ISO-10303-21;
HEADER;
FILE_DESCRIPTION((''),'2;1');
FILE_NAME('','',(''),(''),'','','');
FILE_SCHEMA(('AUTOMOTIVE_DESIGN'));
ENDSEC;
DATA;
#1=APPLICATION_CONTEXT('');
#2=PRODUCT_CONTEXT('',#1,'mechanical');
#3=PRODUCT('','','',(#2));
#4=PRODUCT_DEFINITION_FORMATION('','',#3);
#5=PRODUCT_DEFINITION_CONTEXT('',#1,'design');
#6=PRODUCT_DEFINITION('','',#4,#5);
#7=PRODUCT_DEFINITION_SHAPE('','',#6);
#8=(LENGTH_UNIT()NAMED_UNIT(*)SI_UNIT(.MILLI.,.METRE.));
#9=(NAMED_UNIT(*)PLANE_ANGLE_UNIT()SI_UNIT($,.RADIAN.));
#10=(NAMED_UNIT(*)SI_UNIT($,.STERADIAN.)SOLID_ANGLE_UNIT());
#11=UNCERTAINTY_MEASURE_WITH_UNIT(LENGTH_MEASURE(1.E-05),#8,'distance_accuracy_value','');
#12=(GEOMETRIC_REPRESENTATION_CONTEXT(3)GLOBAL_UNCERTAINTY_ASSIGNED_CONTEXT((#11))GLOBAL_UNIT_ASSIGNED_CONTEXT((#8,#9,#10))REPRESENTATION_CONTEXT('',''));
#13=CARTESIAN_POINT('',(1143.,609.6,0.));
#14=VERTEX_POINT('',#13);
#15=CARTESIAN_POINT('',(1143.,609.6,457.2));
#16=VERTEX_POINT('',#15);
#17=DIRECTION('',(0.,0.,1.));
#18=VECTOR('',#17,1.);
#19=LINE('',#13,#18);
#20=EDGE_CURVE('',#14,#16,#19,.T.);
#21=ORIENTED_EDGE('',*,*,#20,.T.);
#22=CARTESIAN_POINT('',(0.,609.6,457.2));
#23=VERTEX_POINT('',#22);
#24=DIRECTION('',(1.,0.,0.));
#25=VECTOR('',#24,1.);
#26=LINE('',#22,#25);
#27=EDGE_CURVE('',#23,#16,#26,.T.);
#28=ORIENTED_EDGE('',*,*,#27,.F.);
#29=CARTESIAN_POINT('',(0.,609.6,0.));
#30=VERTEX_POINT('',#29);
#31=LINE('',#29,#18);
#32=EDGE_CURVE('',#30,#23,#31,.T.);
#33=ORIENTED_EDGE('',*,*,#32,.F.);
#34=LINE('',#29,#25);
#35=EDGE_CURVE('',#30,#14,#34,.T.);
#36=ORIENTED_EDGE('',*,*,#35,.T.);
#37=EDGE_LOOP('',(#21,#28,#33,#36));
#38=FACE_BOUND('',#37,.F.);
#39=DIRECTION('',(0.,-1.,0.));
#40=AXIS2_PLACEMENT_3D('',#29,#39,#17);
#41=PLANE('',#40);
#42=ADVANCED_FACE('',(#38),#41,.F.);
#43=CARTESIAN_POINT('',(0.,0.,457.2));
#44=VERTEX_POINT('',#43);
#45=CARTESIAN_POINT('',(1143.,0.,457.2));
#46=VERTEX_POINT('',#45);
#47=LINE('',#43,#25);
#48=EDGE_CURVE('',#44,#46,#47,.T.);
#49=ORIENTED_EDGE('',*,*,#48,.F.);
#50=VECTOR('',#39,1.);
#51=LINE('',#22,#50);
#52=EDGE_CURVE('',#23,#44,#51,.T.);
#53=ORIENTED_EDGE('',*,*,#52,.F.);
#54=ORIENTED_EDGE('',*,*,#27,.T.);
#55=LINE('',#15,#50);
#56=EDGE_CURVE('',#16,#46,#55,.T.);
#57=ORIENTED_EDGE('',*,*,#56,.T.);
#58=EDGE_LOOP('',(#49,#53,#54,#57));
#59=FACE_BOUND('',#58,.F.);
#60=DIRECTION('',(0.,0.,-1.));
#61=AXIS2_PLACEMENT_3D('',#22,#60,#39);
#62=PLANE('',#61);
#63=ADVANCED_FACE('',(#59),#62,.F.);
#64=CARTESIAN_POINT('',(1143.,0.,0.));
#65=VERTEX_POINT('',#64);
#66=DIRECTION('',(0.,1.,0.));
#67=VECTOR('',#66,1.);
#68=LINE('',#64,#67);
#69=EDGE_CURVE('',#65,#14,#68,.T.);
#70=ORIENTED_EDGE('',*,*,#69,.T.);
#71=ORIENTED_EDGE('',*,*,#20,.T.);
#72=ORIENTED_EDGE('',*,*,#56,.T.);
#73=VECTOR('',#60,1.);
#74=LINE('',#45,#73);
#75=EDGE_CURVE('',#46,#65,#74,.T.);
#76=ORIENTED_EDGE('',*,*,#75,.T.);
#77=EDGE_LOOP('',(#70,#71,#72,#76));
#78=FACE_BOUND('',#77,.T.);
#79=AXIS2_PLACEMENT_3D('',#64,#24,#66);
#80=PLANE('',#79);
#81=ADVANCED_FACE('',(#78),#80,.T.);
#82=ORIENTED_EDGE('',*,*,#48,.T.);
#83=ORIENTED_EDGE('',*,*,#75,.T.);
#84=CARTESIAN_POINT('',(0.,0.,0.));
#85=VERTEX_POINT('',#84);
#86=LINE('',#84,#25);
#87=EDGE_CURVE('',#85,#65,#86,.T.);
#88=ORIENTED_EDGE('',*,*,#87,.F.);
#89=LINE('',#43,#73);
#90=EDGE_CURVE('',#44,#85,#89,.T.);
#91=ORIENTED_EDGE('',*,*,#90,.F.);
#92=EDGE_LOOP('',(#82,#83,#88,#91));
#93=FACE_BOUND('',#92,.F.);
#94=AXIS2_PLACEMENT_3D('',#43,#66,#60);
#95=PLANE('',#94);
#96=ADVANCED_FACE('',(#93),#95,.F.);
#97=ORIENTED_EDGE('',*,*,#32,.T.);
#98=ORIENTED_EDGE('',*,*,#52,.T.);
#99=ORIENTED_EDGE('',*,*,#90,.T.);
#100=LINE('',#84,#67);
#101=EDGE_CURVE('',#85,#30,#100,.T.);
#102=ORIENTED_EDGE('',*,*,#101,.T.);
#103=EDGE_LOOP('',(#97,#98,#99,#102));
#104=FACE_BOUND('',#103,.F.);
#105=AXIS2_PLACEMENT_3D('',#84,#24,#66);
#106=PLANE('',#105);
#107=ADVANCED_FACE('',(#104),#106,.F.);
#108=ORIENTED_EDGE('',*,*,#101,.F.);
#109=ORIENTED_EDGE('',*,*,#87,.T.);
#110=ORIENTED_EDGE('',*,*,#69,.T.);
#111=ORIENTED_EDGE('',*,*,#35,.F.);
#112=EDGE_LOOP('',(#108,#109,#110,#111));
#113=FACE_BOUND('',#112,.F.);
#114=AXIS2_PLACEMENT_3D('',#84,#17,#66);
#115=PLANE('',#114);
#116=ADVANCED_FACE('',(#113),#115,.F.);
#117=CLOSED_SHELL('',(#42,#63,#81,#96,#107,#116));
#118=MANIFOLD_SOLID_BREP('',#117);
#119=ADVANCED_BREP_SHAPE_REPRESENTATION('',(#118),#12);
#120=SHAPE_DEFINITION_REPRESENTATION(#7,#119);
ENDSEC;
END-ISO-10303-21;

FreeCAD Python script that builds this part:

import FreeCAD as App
import Part
import Sketcher
from FreeCAD import Vector
Q = App.Units.Quantity


def add_polygon(sketch, points):
    """Adds a closed chain of lines whose ends are joined by coincident constraints."""
    first, n = sketch.GeometryCount, len(points)
    for a, b in zip(points, points[1:] + points[:1]):
        sketch.addGeometry(Part.LineSegment(App.Vector(*a, 0), App.Vector(*b, 0)), False)
    for i in range(n):
        sketch.addConstraint(Sketcher.Constraint("Coincident", first + i, 2, first + (i + 1) % n, 1))

doc = App.newDocument("Part")
body = doc.addObject("PartDesign::Body", "Body")

# Sketch on YZ plane
sketch1 = body.newObject("Sketcher::SketchObject", "Sketch")
sketch1.AttachmentSupport = (doc.getObject("YZ_Plane"), [""])
sketch1.MapMode = "FlatFace"
add_polygon(sketch1, [(0, 457), (0, 0), (610, 0), (610, 457)])  # lines 0-3
sketch1.addConstraint([
    Sketcher.Constraint("Vertical", 0),
    Sketcher.Constraint("Horizontal", 1),
    Sketcher.Constraint("Vertical", 2),
    Sketcher.Constraint("Horizontal", 3),
    Sketcher.Constraint("Coincident", 0, 2, -1, 1),
    Sketcher.Constraint("DistanceX", 1, 1, 1, 2, Q("24 in")),
    Sketcher.Constraint("DistanceY", 0, 2, 0, 1, Q("18 in")),
])
pad1 = body.newObject("PartDesign::Pad", "Pad")
pad1.Profile = sketch1
pad1.Length = Q("45 in")

doc.recompute()
